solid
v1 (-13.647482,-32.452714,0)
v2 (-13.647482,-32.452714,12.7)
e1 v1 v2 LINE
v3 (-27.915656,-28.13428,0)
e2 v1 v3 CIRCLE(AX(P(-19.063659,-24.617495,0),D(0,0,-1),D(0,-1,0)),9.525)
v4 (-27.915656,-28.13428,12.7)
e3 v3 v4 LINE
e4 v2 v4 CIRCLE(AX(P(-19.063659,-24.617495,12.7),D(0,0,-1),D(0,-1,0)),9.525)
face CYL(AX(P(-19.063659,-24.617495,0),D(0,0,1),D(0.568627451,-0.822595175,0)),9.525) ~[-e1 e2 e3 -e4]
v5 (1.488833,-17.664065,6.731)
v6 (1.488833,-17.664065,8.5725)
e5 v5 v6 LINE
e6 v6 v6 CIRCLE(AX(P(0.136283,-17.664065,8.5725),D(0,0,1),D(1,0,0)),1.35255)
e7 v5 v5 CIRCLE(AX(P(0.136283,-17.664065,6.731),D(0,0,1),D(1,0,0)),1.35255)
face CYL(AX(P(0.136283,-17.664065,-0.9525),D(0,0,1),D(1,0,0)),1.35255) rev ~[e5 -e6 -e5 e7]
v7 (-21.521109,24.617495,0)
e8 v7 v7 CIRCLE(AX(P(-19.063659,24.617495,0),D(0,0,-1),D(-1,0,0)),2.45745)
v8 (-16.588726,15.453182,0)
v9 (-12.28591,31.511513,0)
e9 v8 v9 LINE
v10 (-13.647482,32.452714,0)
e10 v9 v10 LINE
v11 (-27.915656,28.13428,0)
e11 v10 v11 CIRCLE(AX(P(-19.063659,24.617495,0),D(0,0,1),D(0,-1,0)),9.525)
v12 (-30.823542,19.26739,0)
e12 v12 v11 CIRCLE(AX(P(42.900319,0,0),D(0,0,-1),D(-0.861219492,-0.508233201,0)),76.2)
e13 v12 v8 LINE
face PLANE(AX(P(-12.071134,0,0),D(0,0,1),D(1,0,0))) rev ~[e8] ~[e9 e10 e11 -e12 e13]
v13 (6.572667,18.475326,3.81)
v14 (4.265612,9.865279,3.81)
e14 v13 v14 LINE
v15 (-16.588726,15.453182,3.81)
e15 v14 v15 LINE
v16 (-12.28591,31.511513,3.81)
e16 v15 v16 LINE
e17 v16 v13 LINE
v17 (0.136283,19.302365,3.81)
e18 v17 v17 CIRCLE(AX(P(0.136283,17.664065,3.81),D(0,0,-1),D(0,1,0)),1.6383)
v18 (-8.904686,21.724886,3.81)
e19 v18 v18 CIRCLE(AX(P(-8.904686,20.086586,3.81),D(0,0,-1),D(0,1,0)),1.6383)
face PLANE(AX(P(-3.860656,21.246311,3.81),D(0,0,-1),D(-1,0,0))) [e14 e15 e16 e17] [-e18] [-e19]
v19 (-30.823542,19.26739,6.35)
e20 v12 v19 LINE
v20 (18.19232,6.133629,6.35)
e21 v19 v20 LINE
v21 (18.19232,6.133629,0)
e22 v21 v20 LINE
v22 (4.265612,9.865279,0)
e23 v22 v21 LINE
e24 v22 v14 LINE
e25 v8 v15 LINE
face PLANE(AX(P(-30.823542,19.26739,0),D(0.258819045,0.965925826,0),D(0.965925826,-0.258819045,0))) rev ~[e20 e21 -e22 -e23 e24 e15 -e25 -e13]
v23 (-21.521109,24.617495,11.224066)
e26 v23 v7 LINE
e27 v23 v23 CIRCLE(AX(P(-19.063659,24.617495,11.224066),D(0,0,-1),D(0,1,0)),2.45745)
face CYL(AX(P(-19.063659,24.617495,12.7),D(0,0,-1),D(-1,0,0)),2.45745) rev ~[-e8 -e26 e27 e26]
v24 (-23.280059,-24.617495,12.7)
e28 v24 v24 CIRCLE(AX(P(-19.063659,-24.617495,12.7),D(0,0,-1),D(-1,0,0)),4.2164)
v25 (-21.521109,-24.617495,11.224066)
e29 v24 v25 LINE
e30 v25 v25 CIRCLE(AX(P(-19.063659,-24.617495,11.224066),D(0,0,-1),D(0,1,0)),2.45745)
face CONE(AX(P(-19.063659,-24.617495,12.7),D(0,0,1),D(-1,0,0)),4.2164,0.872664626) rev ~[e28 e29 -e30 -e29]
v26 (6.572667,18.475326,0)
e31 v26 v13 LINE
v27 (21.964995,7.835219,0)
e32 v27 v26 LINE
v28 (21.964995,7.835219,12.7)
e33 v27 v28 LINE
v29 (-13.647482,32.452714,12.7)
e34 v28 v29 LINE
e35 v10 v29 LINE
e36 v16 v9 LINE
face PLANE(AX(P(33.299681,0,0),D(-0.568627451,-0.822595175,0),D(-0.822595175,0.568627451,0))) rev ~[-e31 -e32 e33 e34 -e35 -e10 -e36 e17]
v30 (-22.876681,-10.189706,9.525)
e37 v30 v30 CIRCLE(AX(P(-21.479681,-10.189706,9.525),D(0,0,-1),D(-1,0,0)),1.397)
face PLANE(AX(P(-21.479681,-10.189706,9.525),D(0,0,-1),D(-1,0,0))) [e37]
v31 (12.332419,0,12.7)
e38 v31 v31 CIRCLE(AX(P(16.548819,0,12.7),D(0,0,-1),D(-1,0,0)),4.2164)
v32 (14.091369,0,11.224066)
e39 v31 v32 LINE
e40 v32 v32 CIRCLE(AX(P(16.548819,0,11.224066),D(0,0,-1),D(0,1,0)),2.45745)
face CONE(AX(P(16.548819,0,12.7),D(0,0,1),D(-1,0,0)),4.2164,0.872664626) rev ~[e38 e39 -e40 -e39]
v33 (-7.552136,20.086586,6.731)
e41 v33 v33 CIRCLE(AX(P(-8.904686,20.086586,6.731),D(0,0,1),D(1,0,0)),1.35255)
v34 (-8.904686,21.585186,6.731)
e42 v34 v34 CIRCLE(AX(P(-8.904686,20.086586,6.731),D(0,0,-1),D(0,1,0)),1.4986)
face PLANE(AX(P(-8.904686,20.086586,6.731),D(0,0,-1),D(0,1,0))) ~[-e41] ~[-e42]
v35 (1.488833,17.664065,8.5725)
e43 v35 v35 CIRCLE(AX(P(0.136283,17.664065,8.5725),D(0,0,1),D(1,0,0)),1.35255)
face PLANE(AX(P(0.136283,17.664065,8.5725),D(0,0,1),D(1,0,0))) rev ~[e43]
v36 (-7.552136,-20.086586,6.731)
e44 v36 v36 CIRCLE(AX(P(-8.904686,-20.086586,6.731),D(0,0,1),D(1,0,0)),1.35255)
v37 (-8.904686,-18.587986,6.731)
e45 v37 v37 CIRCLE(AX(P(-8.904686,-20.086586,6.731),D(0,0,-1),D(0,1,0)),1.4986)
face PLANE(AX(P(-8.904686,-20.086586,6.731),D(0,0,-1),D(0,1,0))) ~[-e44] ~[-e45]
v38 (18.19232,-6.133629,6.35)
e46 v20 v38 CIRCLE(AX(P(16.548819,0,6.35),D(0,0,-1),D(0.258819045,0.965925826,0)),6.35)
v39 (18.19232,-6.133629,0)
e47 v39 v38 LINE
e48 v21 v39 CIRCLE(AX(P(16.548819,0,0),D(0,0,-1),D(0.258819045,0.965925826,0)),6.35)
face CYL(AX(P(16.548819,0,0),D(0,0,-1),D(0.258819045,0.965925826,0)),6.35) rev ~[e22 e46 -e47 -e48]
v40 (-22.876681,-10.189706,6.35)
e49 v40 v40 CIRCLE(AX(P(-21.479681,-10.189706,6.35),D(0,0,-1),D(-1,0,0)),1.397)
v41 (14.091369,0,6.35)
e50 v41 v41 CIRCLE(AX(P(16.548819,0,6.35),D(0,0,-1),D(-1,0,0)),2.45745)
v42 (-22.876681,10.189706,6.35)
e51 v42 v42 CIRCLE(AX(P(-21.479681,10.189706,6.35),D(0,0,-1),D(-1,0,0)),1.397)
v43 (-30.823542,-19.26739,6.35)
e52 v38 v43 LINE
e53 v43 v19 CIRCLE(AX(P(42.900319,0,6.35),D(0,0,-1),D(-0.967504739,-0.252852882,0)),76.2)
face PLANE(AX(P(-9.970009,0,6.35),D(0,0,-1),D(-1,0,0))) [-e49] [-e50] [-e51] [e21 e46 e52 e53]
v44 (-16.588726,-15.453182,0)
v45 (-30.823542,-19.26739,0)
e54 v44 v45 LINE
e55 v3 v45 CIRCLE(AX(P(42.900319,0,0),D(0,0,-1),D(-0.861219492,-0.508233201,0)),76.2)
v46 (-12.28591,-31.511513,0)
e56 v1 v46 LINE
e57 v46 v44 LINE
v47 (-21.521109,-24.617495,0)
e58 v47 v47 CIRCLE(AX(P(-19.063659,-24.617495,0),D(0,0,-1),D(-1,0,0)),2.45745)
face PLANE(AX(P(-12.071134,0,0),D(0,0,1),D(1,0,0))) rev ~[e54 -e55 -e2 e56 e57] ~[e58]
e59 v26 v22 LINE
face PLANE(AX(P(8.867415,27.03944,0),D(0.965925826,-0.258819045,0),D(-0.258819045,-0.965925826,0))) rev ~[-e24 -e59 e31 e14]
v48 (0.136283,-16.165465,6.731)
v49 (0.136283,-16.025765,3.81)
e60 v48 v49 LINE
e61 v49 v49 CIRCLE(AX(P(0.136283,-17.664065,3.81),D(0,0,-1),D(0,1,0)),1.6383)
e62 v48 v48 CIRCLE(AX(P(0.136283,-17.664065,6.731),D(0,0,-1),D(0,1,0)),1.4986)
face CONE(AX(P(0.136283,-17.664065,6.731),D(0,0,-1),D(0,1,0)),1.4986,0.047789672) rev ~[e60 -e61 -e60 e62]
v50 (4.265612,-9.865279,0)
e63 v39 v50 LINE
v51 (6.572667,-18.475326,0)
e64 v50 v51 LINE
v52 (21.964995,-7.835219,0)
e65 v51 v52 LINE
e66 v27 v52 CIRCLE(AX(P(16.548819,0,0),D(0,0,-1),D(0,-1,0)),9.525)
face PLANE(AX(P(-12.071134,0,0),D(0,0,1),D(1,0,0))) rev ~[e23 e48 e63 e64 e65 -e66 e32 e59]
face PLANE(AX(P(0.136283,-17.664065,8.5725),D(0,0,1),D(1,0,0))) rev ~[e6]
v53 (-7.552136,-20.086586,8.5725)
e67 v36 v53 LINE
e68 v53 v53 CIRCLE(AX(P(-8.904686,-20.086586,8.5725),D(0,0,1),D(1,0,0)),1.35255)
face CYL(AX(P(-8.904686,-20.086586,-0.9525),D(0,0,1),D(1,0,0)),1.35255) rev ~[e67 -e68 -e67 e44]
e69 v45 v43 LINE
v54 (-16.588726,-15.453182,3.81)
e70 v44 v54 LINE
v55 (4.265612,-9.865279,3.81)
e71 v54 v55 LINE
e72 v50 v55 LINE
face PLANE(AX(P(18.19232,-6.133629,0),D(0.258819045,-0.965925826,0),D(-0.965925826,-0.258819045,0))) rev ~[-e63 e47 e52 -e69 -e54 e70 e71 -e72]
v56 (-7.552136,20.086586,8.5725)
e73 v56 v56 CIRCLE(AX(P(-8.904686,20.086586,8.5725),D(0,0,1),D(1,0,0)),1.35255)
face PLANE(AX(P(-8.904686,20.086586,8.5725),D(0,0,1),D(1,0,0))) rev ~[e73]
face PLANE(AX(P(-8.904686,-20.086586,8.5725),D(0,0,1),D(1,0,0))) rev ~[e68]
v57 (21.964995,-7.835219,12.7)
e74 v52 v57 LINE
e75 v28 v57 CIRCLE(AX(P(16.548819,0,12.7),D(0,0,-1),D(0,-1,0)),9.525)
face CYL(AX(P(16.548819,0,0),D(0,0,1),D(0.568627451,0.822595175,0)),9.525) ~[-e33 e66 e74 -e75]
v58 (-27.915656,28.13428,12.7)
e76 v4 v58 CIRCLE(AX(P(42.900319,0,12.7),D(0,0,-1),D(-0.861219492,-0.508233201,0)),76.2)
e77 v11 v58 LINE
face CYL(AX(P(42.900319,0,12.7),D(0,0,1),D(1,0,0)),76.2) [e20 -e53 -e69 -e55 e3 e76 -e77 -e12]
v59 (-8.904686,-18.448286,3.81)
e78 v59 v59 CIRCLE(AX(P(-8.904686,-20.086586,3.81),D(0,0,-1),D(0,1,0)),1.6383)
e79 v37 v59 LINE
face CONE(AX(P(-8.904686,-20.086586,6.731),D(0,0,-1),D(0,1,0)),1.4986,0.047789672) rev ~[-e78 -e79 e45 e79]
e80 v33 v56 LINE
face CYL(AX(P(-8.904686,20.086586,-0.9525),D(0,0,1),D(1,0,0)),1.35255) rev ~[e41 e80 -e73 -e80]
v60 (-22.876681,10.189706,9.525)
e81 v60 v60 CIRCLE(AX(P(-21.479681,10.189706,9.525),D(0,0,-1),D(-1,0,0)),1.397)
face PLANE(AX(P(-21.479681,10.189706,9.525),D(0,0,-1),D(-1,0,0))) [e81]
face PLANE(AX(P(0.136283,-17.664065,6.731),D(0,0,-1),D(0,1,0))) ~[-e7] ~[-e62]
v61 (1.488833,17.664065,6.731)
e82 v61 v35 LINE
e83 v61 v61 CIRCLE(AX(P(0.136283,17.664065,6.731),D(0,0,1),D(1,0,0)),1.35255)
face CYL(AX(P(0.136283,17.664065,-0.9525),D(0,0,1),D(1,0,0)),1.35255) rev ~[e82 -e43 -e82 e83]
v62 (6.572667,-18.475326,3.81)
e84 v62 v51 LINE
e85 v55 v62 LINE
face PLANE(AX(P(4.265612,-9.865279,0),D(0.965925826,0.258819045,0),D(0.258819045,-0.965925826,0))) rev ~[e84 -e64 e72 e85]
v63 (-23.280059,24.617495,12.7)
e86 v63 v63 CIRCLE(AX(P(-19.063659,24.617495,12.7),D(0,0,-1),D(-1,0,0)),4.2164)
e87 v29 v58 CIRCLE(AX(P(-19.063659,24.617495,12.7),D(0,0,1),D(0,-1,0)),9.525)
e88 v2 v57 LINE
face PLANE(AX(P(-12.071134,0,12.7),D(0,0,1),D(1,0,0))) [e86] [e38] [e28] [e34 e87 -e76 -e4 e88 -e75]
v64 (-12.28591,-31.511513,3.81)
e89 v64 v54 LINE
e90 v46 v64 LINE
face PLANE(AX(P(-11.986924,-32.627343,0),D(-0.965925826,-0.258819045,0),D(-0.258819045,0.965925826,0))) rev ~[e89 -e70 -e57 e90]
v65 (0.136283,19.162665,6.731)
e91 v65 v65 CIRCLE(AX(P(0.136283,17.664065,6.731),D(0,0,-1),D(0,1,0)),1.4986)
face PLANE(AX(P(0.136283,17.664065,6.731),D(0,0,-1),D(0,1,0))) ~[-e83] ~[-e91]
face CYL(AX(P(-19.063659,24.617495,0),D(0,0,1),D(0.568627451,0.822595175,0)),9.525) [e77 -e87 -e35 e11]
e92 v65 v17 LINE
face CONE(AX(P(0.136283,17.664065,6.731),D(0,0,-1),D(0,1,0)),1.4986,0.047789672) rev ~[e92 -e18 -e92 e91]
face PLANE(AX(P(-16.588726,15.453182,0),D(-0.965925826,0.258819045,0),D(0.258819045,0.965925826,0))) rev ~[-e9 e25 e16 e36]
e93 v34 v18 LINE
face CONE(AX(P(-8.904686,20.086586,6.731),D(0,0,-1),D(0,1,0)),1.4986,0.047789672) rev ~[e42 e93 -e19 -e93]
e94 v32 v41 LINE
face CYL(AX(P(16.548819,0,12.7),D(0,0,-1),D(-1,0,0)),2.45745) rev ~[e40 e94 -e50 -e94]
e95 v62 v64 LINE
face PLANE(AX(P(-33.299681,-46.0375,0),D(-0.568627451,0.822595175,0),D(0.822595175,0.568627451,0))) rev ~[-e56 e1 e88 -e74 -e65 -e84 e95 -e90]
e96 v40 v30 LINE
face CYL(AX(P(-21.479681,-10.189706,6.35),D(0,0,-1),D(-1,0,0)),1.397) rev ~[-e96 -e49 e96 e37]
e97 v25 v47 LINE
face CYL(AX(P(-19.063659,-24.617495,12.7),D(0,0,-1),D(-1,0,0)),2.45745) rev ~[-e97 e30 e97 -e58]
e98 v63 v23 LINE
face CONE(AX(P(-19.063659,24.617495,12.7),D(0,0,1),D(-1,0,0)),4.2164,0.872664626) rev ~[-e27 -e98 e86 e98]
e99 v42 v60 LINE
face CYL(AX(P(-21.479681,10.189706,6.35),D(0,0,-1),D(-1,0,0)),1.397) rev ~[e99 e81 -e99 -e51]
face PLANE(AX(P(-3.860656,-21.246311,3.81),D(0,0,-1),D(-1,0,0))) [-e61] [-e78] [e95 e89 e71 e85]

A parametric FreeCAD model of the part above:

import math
import FreeCAD as App
import Part
import Sketcher
Q = App.Units.Quantity


def edges_at(feature, points):
    """Names of the edges that pass closest to the given points."""
    edges = feature.Shape.Edges
    near = lambda p: min(range(len(edges)), key=lambda i: edges[i].distToShape(Part.Vertex(*p))[0])
    return sorted({f"Edge{near(p) + 1}" for p in points})

doc = App.newDocument("Part")
body = doc.addObject("PartDesign::Body", "Body")

sketch1 = doc.addObject("Sketcher::SketchObject", "Sketch")
body.addObject(sketch1)
sketch1.AttachmentSupport = (doc.XY_Plane, [""])
sketch1.MapMode = "FlatFace"
sketch1.addGeometry([
    Part.LineSegment(App.Vector(33.299681, 0, 0), App.Vector(-33.299681, 46.0375, 0)),
    Part.LineSegment(App.Vector(-33.299681, 46.0375, 0), App.Vector(-33.299681, -46.0375, 0)),
    Part.LineSegment(App.Vector(-33.299681, -46.0375, 0), App.Vector(33.299681, 0, 0)),
], False)
sketch1.addConstraint([
    Sketcher.Constraint("Coincident", 0, 2, 1, 1),
    Sketcher.Constraint("Coincident", 1, 2, 2, 1),
    Sketcher.Constraint("Coincident", 2, 2, 0, 1),
    Sketcher.Constraint("Vertical", 1),
    Sketcher.Constraint("PointOnObject", 2, 2, -1),
    Sketcher.Constraint("Equal", 0, 2),
    Sketcher.Constraint("DistanceY", 1, 2, 1, 1, Q("3.625 in")),
    Sketcher.Constraint("Distance", 0, Q("3.1875 in")),
    Sketcher.Constraint("DistanceX", 0, 2, -1, 1, 33.299681),
])
pad1 = doc.addObject("PartDesign::Pad", "Pad")
body.addObject(pad1)
pad1.Profile = sketch1
pad1.Length = Q("0.5 in")

sketch2 = doc.addObject("Sketcher::SketchObject", "Sketch001")
body.addObject(sketch2)
sketch2.AttachmentSupport = (doc.XY_Plane, [""])
sketch2.MapMode = "FlatFace"
sketch2.AttachmentOffset = App.Placement(App.Vector(0, 0, 0.5 * 25.4), App.Rotation())
sketch2.addGeometry([
    Part.Circle(App.Vector(42.900319, 0, 0), App.Vector(0, 0, 1), 101.6),
    Part.Circle(App.Vector(42.900319, 0, 0), App.Vector(0, 0, 1), 76.2),
], False)
sketch2.addConstraint([
    Sketcher.Constraint("Coincident", 1, 3, 0, 3),
    Sketcher.Constraint("PointOnObject", 0, 3, -1),
    Sketcher.Constraint("Diameter", 0, Q("8 in")),
    Sketcher.Constraint("Diameter", 1, Q("6 in")),
    Sketcher.Constraint("DistanceX", -1, 1, 0, 3, 42.900319),
])
pocket1 = doc.addObject("PartDesign::Pocket", "Pocket")
body.addObject(pocket1)
pocket1.Profile = sketch2
pocket1.Type = "ThroughAll"
doc.recompute()

fillet = doc.addObject("PartDesign::Fillet", "Fillet")
body.addObject(fillet)
fillet.Base = (pocket1, edges_at(pocket1, [(-22.725, -38.727, 6.35), (-22.725, 38.727, 6.35), (33.3, 0, 6.35)]))
fillet.Radius = Q("0.375 in")

sketch3 = doc.addObject("Sketcher::SketchObject", "Sketch002")
body.addObject(sketch3)
sketch3.AttachmentSupport = (doc.XY_Plane, [""])
sketch3.MapMode = "FlatFace"
sketch3.AttachmentOffset = App.Placement(App.Vector(0, 0, 0.5 * 25.4), App.Rotation())
sketch3.addGeometry([
    Part.Circle(App.Vector(-19.063659, -24.617495, 0), App.Vector(0, 0, 1), 2.45745),
    Part.Circle(App.Vector(-19.063659, 24.617495, 0), App.Vector(0, 0, 1), 2.45745),
    Part.Circle(App.Vector(16.548819, 0, 0), App.Vector(0, 0, 1), 2.45745),
], False)
sketch3.addConstraint([
    Sketcher.Constraint("Equal", 0, 1),
    Sketcher.Constraint("Equal", 1, 2),
    Sketcher.Constraint("Symmetric", 0, 3, 1, 3, -1),
    Sketcher.Constraint("PointOnObject", 2, 3, -1),
    Sketcher.Constraint("Diameter", 0, Q("0.1935 in")),
    Sketcher.Constraint("DistanceX", 0, 3, -1, 1, 19.063659),
    Sketcher.Constraint("DistanceX", -1, 1, 2, 3, 16.548819),
    Sketcher.Constraint("DistanceY", 0, 3, 1, 3, 49.23499),
])
doc.recompute()
hole = doc.addObject("PartDesign::Hole", "Hole")
body.addObject(hole)
hole.Profile = sketch3
hole.ThreadType = "None"
hole.Diameter = Q("0.1935 in")
hole.DepthType = "Dimension"
hole.Depth = Q("0.5 in")
hole.DrillPoint = "Flat"
hole.HoleCutType = "Countersink"
hole.HoleCutDiameter = Q("0.332 in")
hole.HoleCutCountersinkAngle = 100

sketch4 = doc.addObject("Sketcher::SketchObject", "Sketch003")
body.addObject(sketch4)
sketch4.AttachmentSupport = (doc.XY_Plane, [""])
sketch4.MapMode = "FlatFace"
sketch4.addGeometry([
    Part.LineSegment(App.Vector(-30.823542, 19.26739, 0), App.Vector(18.19232, 6.133629, 0)),
    Part.ArcOfCircle(Part.Circle(App.Vector(16.548819, 0, 0), App.Vector(0, 0, 1), 6.35), math.radians(-75), math.radians(75)),
    Part.LineSegment(App.Vector(18.19232, -6.133629, 0), App.Vector(-30.823542, -19.26739, 0)),
    Part.ArcOfCircle(Part.Circle(App.Vector(42.900319, 0, 0), App.Vector(0, 0, 1), 76.2), math.radians(165.353605), math.radians(194.646395)),
], False)
sketch4.addConstraint([
    Sketcher.Constraint("Tangent", 0, 2, 1, 2),
    Sketcher.Constraint("Tangent", 1, 1, 2, 1),
    Sketcher.Constraint("Coincident", 2, 2, 3, 2),
    Sketcher.Constraint("Coincident", 3, 1, 0, 1),
    Sketcher.Constraint("Symmetric", 0, 2, 1, 1, -1),
    Sketcher.Constraint("PointOnObject", 3, 3, -1),
    Sketcher.Constraint("Radius", 3, Q("3 in")),
    Sketcher.Constraint("Radius", 1, Q("0.25 in")),
    Sketcher.Constraint("Angle", 0, Q("-15 deg")),
    Sketcher.Constraint("DistanceX", 1, 3, 3, 3, 26.3515),
    Sketcher.Constraint("DistanceX", -1, 1, 1, 3, 16.548819),
])
pocket2 = doc.addObject("PartDesign::Pocket", "Pocket001")
body.addObject(pocket2)
pocket2.Profile = sketch4
pocket2.Length = Q("0.25 in")
pocket2.Reversed = True

sketch5 = doc.addObject("Sketcher::SketchObject", "Sketch004")
body.addObject(sketch5)
sketch5.AttachmentSupport = (doc.XY_Plane, [""])
sketch5.MapMode = "FlatFace"
sketch5.addGeometry([
    Part.LineSegment(App.Vector(-16.588726, -15.453182, 0), App.Vector(4.265612, -9.865279, 0)),
    Part.LineSegment(App.Vector(4.265612, -9.865279, 0), App.Vector(8.867415, -27.03944, 0)),
    Part.LineSegment(App.Vector(8.867415, -27.03944, 0), App.Vector(-11.986924, -32.627343, 0)),
    Part.LineSegment(App.Vector(-11.986924, -32.627343, 0), App.Vector(-16.588726, -15.453182, 0)),
    Part.LineSegment(App.Vector(-11.986924, 32.627343, 0), App.Vector(8.867415, 27.03944, 0)),
    Part.LineSegment(App.Vector(8.867415, 27.03944, 0), App.Vector(4.265612, 9.865279, 0)),
    Part.LineSegment(App.Vector(4.265612, 9.865279, 0), App.Vector(-16.588726, 15.453182, 0)),
    Part.LineSegment(App.Vector(-16.588726, 15.453182, 0), App.Vector(-11.986924, 32.627343, 0)),
], False)
sketch5.addConstraint([
    Sketcher.Constraint("Coincident", 0, 2, 1, 1),
    Sketcher.Constraint("Coincident", 1, 2, 2, 1),
    Sketcher.Constraint("Coincident", 2, 2, 3, 1),
    Sketcher.Constraint("Coincident", 3, 2, 0, 1),
    Sketcher.Constraint("Coincident", 4, 2, 5, 1),
    Sketcher.Constraint("Coincident", 5, 2, 6, 1),
    Sketcher.Constraint("Coincident", 6, 2, 7, 1),
    Sketcher.Constraint("Coincident", 7, 2, 4, 1),
    Sketcher.Constraint("Symmetric", 1, 2, 4, 2, -1),
    Sketcher.Constraint("Symmetric", 0, 2, 5, 2, -1),
    Sketcher.Constraint("Symmetric", 3, 2, 6, 2, -1),
    Sketcher.Constraint("Symmetric", 2, 2, 7, 2, -1),
    Sketcher.Constraint("Perpendicular", 0, 1),
    Sketcher.Constraint("Perpendicular", 1, 2),
    Sketcher.Constraint("Perpendicular", 2, 3),
    Sketcher.Constraint("Angle", 0, Q("15 deg")),
    Sketcher.Constraint("Distance", 1, Q("0.7 in")),
    Sketcher.Constraint("Distance", 0, Q("0.85 in")),
    Sketcher.Constraint("DistanceY", 0, 2, -1, 1, 9.865279),
    Sketcher.Constraint("DistanceX", -1, 1, 0, 2, 4.265612),
])
pocket3 = doc.addObject("PartDesign::Pocket", "Pocket002")
body.addObject(pocket3)
pocket3.Profile = sketch5
pocket3.Length = Q("0.15 in")
pocket3.Reversed = True

sketch6 = doc.addObject("Sketcher::SketchObject", "Sketch005")
body.addObject(sketch6)
sketch6.AttachmentSupport = (doc.XY_Plane, [""])
sketch6.MapMode = "FlatFace"
sketch6.AttachmentOffset = App.Placement(App.Vector(0, 0, 0.25 * 25.4), App.Rotation())
sketch6.addGeometry([
    Part.Circle(App.Vector(-21.479681, -10.189706, 0), App.Vector(0, 0, 1), 1.397),
    Part.Circle(App.Vector(-21.479681, 10.189706, 0), App.Vector(0, 0, 1), 1.397),
], False)
sketch6.addConstraint([
    Sketcher.Constraint("Equal", 0, 1),
    Sketcher.Constraint("Symmetric", 0, 3, 1, 3, -1),
    Sketcher.Constraint("Diameter", 0, Q("0.11 in")),
    Sketcher.Constraint("DistanceX", 0, 3, -1, 1, 21.479681),
    Sketcher.Constraint("DistanceY", 0, 3, 1, 3, 20.379412),
])
pocket4 = doc.addObject("PartDesign::Pocket", "Pocket003")
body.addObject(pocket4)
pocket4.Profile = sketch6
pocket4.Length = Q("0.125 in")
pocket4.Reversed = True

sketch7 = doc.addObject("Sketcher::SketchObject", "Sketch006")
body.addObject(sketch7)
sketch7.AttachmentSupport = (doc.YZ_Plane, [""])
sketch7.MapMode = "FlatFace"
sketch7.AttachmentOffset = App.Placement(App.Vector(0, 0, -8.904686), App.Rotation())
sketch7.addGeometry([
    Part.LineSegment(App.Vector(-20.086586, 6.731, 0), App.Vector(-20.086586, 3.81, 0)),
    Part.LineSegment(App.Vector(-20.086586, 3.81, 0), App.Vector(-18.448286, 3.81, 0)),
    Part.LineSegment(App.Vector(-18.448286, 3.81, 0), App.Vector(-18.587986, 6.731, 0)),
    Part.LineSegment(App.Vector(-18.587986, 6.731, 0), App.Vector(-20.086586, 6.731, 0)),
], False)
sketch7.addGeometry(Part.LineSegment(App.Vector(-20.086586, 6.731, 0), App.Vector(-20.086586, 3.81, 0)), True)
sketch7.addConstraint([
    Sketcher.Constraint("Coincident", 0, 2, 1, 1),
    Sketcher.Constraint("Coincident", 1, 2, 2, 1),
    Sketcher.Constraint("Coincident", 2, 2, 3, 1),
    Sketcher.Constraint("Coincident", 3, 2, 0, 1),
    Sketcher.Constraint("Vertical", 0),
    Sketcher.Constraint("Horizontal", 1),
    Sketcher.Constraint("Horizontal", 3),
    Sketcher.Constraint("Vertical", 4),
    Sketcher.Constraint("Coincident", 4, 1, 3, 2),
    Sketcher.Constraint("Horizontal", 1, 2, 4, 2),
    Sketcher.Constraint("DistanceX", 3, 2, 3, 1, Q("0.059 in")),
    Sketcher.Constraint("DistanceY", 0, 2, 0, 1, Q("0.115 in")),
    Sketcher.Constraint("DistanceY", -1, 1, 0, 2, Q("0.15 in")),
    Sketcher.Constraint("DistanceX", 1, 1, 1, 2, Q("0.0645 in")),
    Sketcher.Constraint("DistanceX", 0, 2, -1, 1, 20.086586),
])
groove = doc.addObject("PartDesign::Groove", "Groove")
body.addObject(groove)
groove.Profile = sketch7
groove.ReferenceAxis = (sketch7, ["Axis0"])
groove.Angle = 360
doc.recompute()

datumline = doc.addObject("PartDesign::Line", "DatumLine")
body.addObject(datumline)
datumline.Placement = App.Placement(App.Vector(0, 0, 0), App.Rotation(App.Vector(0, 0, 1), App.Vector(0.965925826, 0.258819045, 0)))
linearpattern = doc.addObject("PartDesign::LinearPattern", "LinearPattern")
body.addObject(linearpattern)
linearpattern.Originals = [groove]
linearpattern.Direction = (datumline, [""])
linearpattern.Mode = "offset"
linearpattern.Offset = Q("0.3685 in")
linearpattern.Occurrences = 2
body.Tip = linearpattern
doc.recompute()

datumline2 = doc.addObject("PartDesign::Line", "DatumLine001")
body.addObject(datumline2)
datumline2.Placement = App.Placement(App.Vector(0, 0, 0), App.Rotation(App.Vector(0, 0, 1), App.Vector(0.232905565, 0.972499356, 0)))
linearpattern2 = doc.addObject("PartDesign::LinearPattern", "LinearPattern001")
body.addObject(linearpattern2)
linearpattern2.Originals = [groove]
linearpattern2.Direction = (datumline2, [""])
linearpattern2.Mode = "offset"
linearpattern2.Offset = 38.818176
linearpattern2.Occurrences = 2
body.Tip = linearpattern2
doc.recompute()

linearpattern3 = doc.addObject("PartDesign::LinearPattern", "LinearPattern002")
body.addObject(linearpattern3)
linearpattern3.Originals = [groove]
linearpattern3.Direction = (doc.Y_Axis, [""])
linearpattern3.Mode = "offset"
linearpattern3.Offset = 40.173171
linearpattern3.Occurrences = 2
body.Tip = linearpattern3

sketch8 = doc.addObject("Sketcher::SketchObject", "Sketch007")
body.addObject(sketch8)
sketch8.AttachmentSupport = (doc.XY_Plane, [""])
sketch8.MapMode = "FlatFace"
sketch8.AttachmentOffset = App.Placement(App.Vector(0, 0, 0.15 * 25.4), App.Rotation())
sketch8.addGeometry([
    Part.Circle(App.Vector(-8.904686, -20.086586, 0), App.Vector(0, 0, 1), 1.35255),
    Part.Circle(App.Vector(0.136283, -17.664065, 0), App.Vector(0, 0, 1), 1.35255),
    Part.Circle(App.Vector(0.136283, 17.664065, 0), App.Vector(0, 0, 1), 1.35255),
    Part.Circle(App.Vector(-8.904686, 20.086586, 0), App.Vector(0, 0, 1), 1.35255),
], False)
sketch8.addConstraint([
    Sketcher.Constraint("Equal", 0, 1),
    Sketcher.Constraint("Equal", 1, 2),
    Sketcher.Constraint("Equal", 2, 3),
    Sketcher.Constraint("Symmetric", 1, 3, 2, 3, -1),
    Sketcher.Constraint("Symmetric", 0, 3, 3, 3, -1),
    Sketcher.Constraint("Diameter", 0, Q("0.1065 in")),
    Sketcher.Constraint("DistanceX", 0, 3, 1, 3, 9.040969),
    Sketcher.Constraint("DistanceY", 0, 3, 1, 3, 2.42252),
    Sketcher.Constraint("DistanceY", 1, 3, 2, 3, 35.32813),
    Sketcher.Constraint("DistanceX", 0, 3, -1, 1, 8.904686),
])
doc.recompute()
hole2 = doc.addObject("PartDesign::Hole", "Hole001")
body.addObject(hole2)
hole2.Profile = sketch8
hole2.ThreadType = "None"
hole2.Diameter = Q("0.1065 in")
hole2.DepthType = "Dimension"
hole2.Depth = Q("0.1875 in")
hole2.DrillPoint = "Flat"
hole2.Reversed = True

doc.recompute()
